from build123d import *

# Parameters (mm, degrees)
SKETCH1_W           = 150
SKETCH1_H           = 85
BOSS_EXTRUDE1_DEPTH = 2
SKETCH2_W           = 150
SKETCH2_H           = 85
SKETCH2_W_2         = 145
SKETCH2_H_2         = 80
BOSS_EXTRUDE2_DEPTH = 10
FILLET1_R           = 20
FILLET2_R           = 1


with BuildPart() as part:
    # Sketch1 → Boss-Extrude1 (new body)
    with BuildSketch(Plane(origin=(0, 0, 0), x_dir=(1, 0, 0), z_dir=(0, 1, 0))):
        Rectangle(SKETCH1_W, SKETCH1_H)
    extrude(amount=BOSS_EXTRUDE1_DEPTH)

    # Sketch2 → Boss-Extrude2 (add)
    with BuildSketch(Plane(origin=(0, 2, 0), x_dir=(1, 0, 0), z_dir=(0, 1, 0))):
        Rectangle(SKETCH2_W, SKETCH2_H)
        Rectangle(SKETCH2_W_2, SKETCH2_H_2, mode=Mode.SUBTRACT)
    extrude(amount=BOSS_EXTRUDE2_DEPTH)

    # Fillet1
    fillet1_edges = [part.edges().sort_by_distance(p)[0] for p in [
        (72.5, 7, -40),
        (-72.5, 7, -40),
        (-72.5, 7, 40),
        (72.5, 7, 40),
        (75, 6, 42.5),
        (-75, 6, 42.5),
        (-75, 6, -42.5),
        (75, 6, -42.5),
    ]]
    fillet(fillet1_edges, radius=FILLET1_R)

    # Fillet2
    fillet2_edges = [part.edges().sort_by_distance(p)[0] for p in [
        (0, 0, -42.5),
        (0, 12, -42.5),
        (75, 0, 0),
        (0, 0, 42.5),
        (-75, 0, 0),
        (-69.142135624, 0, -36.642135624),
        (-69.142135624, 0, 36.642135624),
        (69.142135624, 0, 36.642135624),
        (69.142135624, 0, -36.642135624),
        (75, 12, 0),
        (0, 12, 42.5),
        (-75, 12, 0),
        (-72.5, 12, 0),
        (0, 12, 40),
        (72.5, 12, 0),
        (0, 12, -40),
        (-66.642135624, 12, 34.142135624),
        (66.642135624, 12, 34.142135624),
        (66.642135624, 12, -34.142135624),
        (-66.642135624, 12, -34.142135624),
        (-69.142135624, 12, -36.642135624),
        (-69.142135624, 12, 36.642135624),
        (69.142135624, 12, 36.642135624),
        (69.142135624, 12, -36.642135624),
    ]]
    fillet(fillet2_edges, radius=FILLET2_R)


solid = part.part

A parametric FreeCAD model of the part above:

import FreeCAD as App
import Part
import Sketcher

V = App.Vector


def edges_at(feature, points):
    """Names of the edges that pass closest to the given points."""
    edges = feature.Shape.Edges
    near = lambda p: min(range(len(edges)), key=lambda i: edges[i].distToShape(Part.Vertex(*p))[0])
    return sorted({f"Edge{near(p) + 1}" for p in points})

doc = App.newDocument("Part")
body = doc.addObject("PartDesign::Body", "Body")

# Sketch on XZ plane
sketch1 = body.newObject("Sketcher::SketchObject", "Sketch")
sketch1.AttachmentSupport = (doc.getObject("XZ_Plane"), [""])
sketch1.MapMode = "FlatFace"
sketch1.addGeometry(Part.LineSegment(V(-75, -42, 0), V(-75, 42, 0)), False)
sketch1.addGeometry(Part.LineSegment(V(-75, 42, 0), V(75, 42, 0)), False)
sketch1.addGeometry(Part.LineSegment(V(75, 42, 0), V(75, -42, 0)), False)
sketch1.addGeometry(Part.LineSegment(V(75, -42, 0), V(-75, -42, 0)), False)
sketch1.addConstraint(Sketcher.Constraint("Coincident", 0, 2, 1, 1))
sketch1.addConstraint(Sketcher.Constraint("Coincident", 1, 2, 2, 1))
sketch1.addConstraint(Sketcher.Constraint("Coincident", 2, 2, 3, 1))
sketch1.addConstraint(Sketcher.Constraint("Coincident", 3, 2, 0, 1))
sketch1.addConstraint(Sketcher.Constraint("Vertical", 0))
sketch1.addConstraint(Sketcher.Constraint("Horizontal", 1))
sketch1.addConstraint(Sketcher.Constraint("Vertical", 2))
sketch1.addConstraint(Sketcher.Constraint("Horizontal", 3))
sketch1.addConstraint(Sketcher.Constraint("Symmetric", 0, 2, 2, 2, -1, 1))
sketch1.addConstraint(Sketcher.Constraint("DistanceX", 1, 1, 1, 2, 150.0))
sketch1.addConstraint(Sketcher.Constraint("DistanceY", 0, 1, 0, 2, 85.0))
pad1 = body.newObject("PartDesign::Pad", "Pad")
pad1.Profile = sketch1
pad1.Length = 2
pad1.Reversed = True

# Sketch on XZ plane
sketch2 = body.newObject("Sketcher::SketchObject", "Sketch001")
sketch2.AttachmentSupport = (doc.getObject("XZ_Plane"), [""])
sketch2.MapMode = "FlatFace"
sketch2.AttachmentOffset = App.Placement(V(0, 0, -2), App.Rotation())
sketch2.addGeometry(Part.LineSegment(V(-75, -42, 0), V(-75, 42, 0)), False)
sketch2.addGeometry(Part.LineSegment(V(-75, 42, 0), V(75, 42, 0)), False)
sketch2.addGeometry(Part.LineSegment(V(75, 42, 0), V(75, -42, 0)), False)
sketch2.addGeometry(Part.LineSegment(V(75, -42, 0), V(-75, -42, 0)), False)
sketch2.addGeometry(Part.LineSegment(V(72, 40, 0), V(-72, 40, 0)), False)
sketch2.addGeometry(Part.LineSegment(V(-72, 40, 0), V(-72, -40, 0)), False)
sketch2.addGeometry(Part.LineSegment(V(-72, -40, 0), V(72, -40, 0)), False)
sketch2.addGeometry(Part.LineSegment(V(72, -40, 0), V(72, 40, 0)), False)
sketch2.addConstraint(Sketcher.Constraint("Coincident", 0, 2, 1, 1))
sketch2.addConstraint(Sketcher.Constraint("Coincident", 1, 2, 2, 1))
sketch2.addConstraint(Sketcher.Constraint("Coincident", 2, 2, 3, 1))
sketch2.addConstraint(Sketcher.Constraint("Coincident", 3, 2, 0, 1))
sketch2.addConstraint(Sketcher.Constraint("Coincident", 4, 2, 5, 1))
sketch2.addConstraint(Sketcher.Constraint("Coincident", 5, 2, 6, 1))
sketch2.addConstraint(Sketcher.Constraint("Coincident", 6, 2, 7, 1))
sketch2.addConstraint(Sketcher.Constraint("Coincident", 7, 2, 4, 1))
sketch2.addConstraint(Sketcher.Constraint("Vertical", 0))
sketch2.addConstraint(Sketcher.Constraint("Horizontal", 1))
sketch2.addConstraint(Sketcher.Constraint("Vertical", 2))
sketch2.addConstraint(Sketcher.Constraint("Horizontal", 3))
sketch2.addConstraint(Sketcher.Constraint("Horizontal", 4))
sketch2.addConstraint(Sketcher.Constraint("Vertical", 5))
sketch2.addConstraint(Sketcher.Constraint("Horizontal", 6))
sketch2.addConstraint(Sketcher.Constraint("Vertical", 7))
sketch2.addConstraint(Sketcher.Constraint("Symmetric", 0, 2, 2, 2, -1, 1))
sketch2.addConstraint(Sketcher.Constraint("Symmetric", 4, 2, 6, 2, -1, 1))
sketch2.addConstraint(Sketcher.Constraint("DistanceX", 1, 1, 1, 2, 150.0))
sketch2.addConstraint(Sketcher.Constraint("DistanceX", 4, 2, 4, 1, 145.0))
sketch2.addConstraint(Sketcher.Constraint("DistanceY", 0, 1, 0, 2, 85.0))
sketch2.addConstraint(Sketcher.Constraint("DistanceY", 5, 2, 5, 1, 80.0))
pad2 = body.newObject("PartDesign::Pad", "Pad001")
pad2.Profile = sketch2
pad2.Length = 10
pad2.Reversed = True
doc.recompute()

fillet = body.newObject("PartDesign::Fillet", "Fillet")
fillet.Base = (pad2, edges_at(pad2, [
    (72.5, 7, -40),
    (-72.5, 7, -40),
    (-72.5, 7, 40),
    (72.5, 7, 40),
    (75, 6, 42.5),
    (-75, 6, 42.5),
    (-75, 6, -42.5),
    (75, 6, -42.5),
]))
fillet.Radius = 20
doc.recompute()

fillet2 = body.newObject("PartDesign::Fillet", "Fillet001")
fillet2.Base = (fillet, edges_at(fillet, [
    (0, 0, -42.5),
    (0, 12, -42.5),
    (75, 0, 0),
    (0, 0, 42.5),
    (-75, 0, 0),
    (-69.142, 0, -36.642),
    (-69.142, 0, 36.642),
    (69.142, 0, 36.642),
    (69.142, 0, -36.642),
    (75, 12, 0),
    (0, 12, 42.5),
    (-75, 12, 0),
    (-72.5, 12, 0),
    (0, 12, 40),
    (72.5, 12, 0),
    (0, 12, -40),
    (-66.642, 12, 34.142),
    (66.642, 12, 34.142),
    (66.642, 12, -34.142),
    (-66.642, 12, -34.142),
    (-69.142, 12, -36.642),
    (-69.142, 12, 36.642),
    (69.142, 12, 36.642),
    (69.142, 12, -36.642),
]))
fillet2.Radius = 1

doc.recompute()
